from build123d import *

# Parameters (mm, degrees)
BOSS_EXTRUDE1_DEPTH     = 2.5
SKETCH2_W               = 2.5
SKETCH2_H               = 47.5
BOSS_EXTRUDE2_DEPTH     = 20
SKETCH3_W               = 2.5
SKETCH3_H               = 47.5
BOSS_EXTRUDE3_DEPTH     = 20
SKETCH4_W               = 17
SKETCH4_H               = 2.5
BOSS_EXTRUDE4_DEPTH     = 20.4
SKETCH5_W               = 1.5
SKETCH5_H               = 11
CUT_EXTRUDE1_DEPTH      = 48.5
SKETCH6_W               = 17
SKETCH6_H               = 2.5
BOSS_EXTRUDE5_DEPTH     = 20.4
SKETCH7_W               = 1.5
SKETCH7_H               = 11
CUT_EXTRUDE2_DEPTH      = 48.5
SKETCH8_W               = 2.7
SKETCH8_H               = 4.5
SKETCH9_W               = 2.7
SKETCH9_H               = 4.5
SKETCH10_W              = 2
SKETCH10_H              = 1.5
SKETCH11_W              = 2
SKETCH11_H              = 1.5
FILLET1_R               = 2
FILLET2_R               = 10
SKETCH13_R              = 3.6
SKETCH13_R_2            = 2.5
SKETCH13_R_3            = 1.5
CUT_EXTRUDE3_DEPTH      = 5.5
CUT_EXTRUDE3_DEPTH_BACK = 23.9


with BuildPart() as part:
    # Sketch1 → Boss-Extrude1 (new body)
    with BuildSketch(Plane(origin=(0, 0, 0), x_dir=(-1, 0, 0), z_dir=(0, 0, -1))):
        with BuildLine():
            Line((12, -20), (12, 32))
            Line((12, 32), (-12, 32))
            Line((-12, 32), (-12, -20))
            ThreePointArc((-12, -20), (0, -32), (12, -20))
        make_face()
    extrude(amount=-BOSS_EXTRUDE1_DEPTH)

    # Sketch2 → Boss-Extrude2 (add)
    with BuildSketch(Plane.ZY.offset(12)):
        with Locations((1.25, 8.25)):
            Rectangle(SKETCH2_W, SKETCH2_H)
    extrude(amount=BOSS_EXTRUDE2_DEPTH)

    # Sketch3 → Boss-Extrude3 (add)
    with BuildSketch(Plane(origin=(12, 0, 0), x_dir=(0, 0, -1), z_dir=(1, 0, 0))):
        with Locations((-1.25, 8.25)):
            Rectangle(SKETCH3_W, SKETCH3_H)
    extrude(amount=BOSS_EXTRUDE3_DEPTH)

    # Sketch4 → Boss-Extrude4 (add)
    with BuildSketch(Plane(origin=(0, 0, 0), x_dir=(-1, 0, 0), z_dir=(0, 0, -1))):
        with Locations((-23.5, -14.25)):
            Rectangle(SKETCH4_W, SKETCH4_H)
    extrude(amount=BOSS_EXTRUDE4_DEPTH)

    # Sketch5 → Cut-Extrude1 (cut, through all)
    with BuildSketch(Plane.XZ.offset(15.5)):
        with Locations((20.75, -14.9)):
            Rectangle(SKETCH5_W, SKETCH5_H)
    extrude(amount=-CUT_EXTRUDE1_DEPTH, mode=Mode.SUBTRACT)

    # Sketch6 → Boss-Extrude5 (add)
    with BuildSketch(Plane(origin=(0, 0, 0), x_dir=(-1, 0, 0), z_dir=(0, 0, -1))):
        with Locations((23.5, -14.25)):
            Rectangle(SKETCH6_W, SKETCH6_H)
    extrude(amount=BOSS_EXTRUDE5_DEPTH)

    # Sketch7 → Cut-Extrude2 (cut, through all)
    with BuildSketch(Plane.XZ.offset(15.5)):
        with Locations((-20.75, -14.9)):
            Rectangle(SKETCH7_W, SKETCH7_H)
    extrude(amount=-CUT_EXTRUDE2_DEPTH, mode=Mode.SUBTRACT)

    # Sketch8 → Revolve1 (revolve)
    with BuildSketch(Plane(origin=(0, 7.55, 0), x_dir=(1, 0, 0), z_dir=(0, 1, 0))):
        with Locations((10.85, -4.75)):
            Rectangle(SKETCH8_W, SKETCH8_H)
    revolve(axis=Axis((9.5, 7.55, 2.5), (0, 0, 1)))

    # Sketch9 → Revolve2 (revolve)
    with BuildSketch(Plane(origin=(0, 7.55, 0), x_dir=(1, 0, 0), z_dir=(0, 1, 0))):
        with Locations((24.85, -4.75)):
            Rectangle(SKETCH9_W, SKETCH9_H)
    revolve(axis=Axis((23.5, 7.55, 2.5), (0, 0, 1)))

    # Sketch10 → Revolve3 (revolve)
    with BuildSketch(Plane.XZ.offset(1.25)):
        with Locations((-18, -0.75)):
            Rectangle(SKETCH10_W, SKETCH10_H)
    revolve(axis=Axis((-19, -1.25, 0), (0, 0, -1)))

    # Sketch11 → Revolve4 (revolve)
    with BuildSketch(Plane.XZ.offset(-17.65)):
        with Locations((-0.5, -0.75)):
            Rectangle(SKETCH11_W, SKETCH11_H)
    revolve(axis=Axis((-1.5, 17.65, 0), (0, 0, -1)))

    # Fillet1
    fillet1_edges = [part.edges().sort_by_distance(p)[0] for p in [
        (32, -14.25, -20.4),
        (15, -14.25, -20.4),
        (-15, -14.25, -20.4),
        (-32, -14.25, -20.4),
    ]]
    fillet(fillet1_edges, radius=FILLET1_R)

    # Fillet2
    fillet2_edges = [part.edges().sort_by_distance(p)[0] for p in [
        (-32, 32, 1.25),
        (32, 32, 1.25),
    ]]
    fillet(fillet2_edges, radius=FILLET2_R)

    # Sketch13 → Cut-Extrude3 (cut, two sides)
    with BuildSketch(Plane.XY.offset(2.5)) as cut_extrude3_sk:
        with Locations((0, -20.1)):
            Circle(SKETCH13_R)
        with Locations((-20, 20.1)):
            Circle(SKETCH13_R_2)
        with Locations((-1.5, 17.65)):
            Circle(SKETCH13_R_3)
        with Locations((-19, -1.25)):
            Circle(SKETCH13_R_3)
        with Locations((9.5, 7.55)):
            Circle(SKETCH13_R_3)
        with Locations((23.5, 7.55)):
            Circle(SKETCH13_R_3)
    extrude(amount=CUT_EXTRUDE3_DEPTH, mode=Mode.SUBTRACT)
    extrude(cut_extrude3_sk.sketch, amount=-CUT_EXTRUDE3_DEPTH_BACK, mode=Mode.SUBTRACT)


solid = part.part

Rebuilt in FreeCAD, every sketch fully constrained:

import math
import FreeCAD as App
import Part
import Sketcher


def edges_at(feature, points):
    """Names of the edges that pass closest to the given points."""
    edges = feature.Shape.Edges
    near = lambda p: min(range(len(edges)), key=lambda i: edges[i].distToShape(Part.Vertex(*p))[0])
    return sorted({f"Edge{near(p) + 1}" for p in points})

doc = App.newDocument("Part")
body = doc.addObject("PartDesign::Body", "Body")

sketch1 = body.newObject("Sketcher::SketchObject", "Sketch")
sketch1.AttachmentSupport = (doc.getObject("XY_Plane"), [""])
sketch1.MapMode = "FlatFace"
sketch1.addGeometry([
    Part.LineSegment(App.Vector(-12, -20, 0), App.Vector(-12, 32, 0)),
    Part.LineSegment(App.Vector(-12, 32, 0), App.Vector(12, 32, 0)),
    Part.LineSegment(App.Vector(12, 32, 0), App.Vector(12, -20, 0)),
    Part.ArcOfCircle(Part.Circle(App.Vector(0, -20, 0), App.Vector(0, 0, 1), 12), math.radians(180), math.radians(360)),
], False)
sketch1.addConstraint([
    Sketcher.Constraint("Coincident", 0, 2, 1, 1),
    Sketcher.Constraint("Coincident", 1, 2, 2, 1),
    Sketcher.Constraint("Tangent", 2, 2, 3, 2),
    Sketcher.Constraint("Tangent", 3, 1, 0, 1),
    Sketcher.Constraint("Vertical", 0),
    Sketcher.Constraint("Horizontal", 1),
    Sketcher.Constraint("Vertical", 2),
    Sketcher.Constraint("PointOnObject", 3, 3, -2),
    Sketcher.Constraint("Radius", 3, 12.0),
    Sketcher.Constraint("DistanceY", 0, 1, 0, 2, 52.0),
    Sketcher.Constraint("DistanceY", 3, 3, -1, 1, 20.0),
])
pad1 = body.newObject("PartDesign::Pad", "Pad")
pad1.Profile = sketch1
pad1.Length = 2.5

sketch2 = body.newObject("Sketcher::SketchObject", "Sketch001")
sketch2.AttachmentSupport = (doc.getObject("YZ_Plane"), [""])
sketch2.MapMode = "FlatFace"
sketch2.AttachmentOffset = App.Placement(App.Vector(0, 0, -12), App.Rotation())
sketch2.addGeometry([
    Part.LineSegment(App.Vector(32, 0, 0), App.Vector(-15.5, 0, 0)),
    Part.LineSegment(App.Vector(-15.5, 0, 0), App.Vector(-15.5, 2.5, 0)),
    Part.LineSegment(App.Vector(-15.5, 2.5, 0), App.Vector(32, 2.5, 0)),
    Part.LineSegment(App.Vector(32, 2.5, 0), App.Vector(32, 0, 0)),
], False)
sketch2.addConstraint([
    Sketcher.Constraint("Coincident", 0, 2, 1, 1),
    Sketcher.Constraint("Coincident", 1, 2, 2, 1),
    Sketcher.Constraint("Coincident", 2, 2, 3, 1),
    Sketcher.Constraint("Coincident", 3, 2, 0, 1),
    Sketcher.Constraint("Horizontal", 0),
    Sketcher.Constraint("Vertical", 1),
    Sketcher.Constraint("Horizontal", 2),
    Sketcher.Constraint("Vertical", 3),
    Sketcher.Constraint("PointOnObject", 0, 2, -1),
    Sketcher.Constraint("DistanceX", 0, 2, 0, 1, 47.5),
    Sketcher.Constraint("DistanceY", 1, 1, 1, 2, 2.5),
    Sketcher.Constraint("DistanceX", -1, 1, 2, 2, 32.0),
])
pad2 = body.newObject("PartDesign::Pad", "Pad001")
pad2.Profile = sketch2
pad2.Length = 20
pad2.Reversed = True

sketch3 = body.newObject("Sketcher::SketchObject", "Sketch002")
sketch3.AttachmentSupport = (doc.getObject("YZ_Plane"), [""])
sketch3.MapMode = "FlatFace"
sketch3.AttachmentOffset = App.Placement(App.Vector(0, 0, 12), App.Rotation())
sketch3.addGeometry([
    Part.LineSegment(App.Vector(32, 2.5, 0), App.Vector(-15.5, 2.5, 0)),
    Part.LineSegment(App.Vector(-15.5, 2.5, 0), App.Vector(-15.5, 0, 0)),
    Part.LineSegment(App.Vector(-15.5, 0, 0), App.Vector(32, 0, 0)),
    Part.LineSegment(App.Vector(32, 0, 0), App.Vector(32, 2.5, 0)),
], False)
sketch3.addConstraint([
    Sketcher.Constraint("Coincident", 0, 2, 1, 1),
    Sketcher.Constraint("Coincident", 1, 2, 2, 1),
    Sketcher.Constraint("Coincident", 2, 2, 3, 1),
    Sketcher.Constraint("Coincident", 3, 2, 0, 1),
    Sketcher.Constraint("Horizontal", 0),
    Sketcher.Constraint("Vertical", 1),
    Sketcher.Constraint("Horizontal", 2),
    Sketcher.Constraint("Vertical", 3),
    Sketcher.Constraint("PointOnObject", 1, 2, -1),
    Sketcher.Constraint("DistanceX", 0, 2, 0, 1, 47.5),
    Sketcher.Constraint("DistanceY", 1, 2, 1, 1, 2.5),
    Sketcher.Constraint("DistanceX", -1, 1, 2, 2, 32.0),
])
pad3 = body.newObject("PartDesign::Pad", "Pad002")
pad3.Profile = sketch3
pad3.Length = 20

sketch4 = body.newObject("Sketcher::SketchObject", "Sketch003")
sketch4.AttachmentSupport = (doc.getObject("XY_Plane"), [""])
sketch4.MapMode = "FlatFace"
sketch4.addGeometry([
    Part.LineSegment(App.Vector(32, -13, 0), App.Vector(32, -15.5, 0)),
    Part.LineSegment(App.Vector(32, -15.5, 0), App.Vector(15, -15.5, 0)),
    Part.LineSegment(App.Vector(15, -15.5, 0), App.Vector(15, -13, 0)),
    Part.LineSegment(App.Vector(15, -13, 0), App.Vector(32, -13, 0)),
], False)
sketch4.addConstraint([
    Sketcher.Constraint("Coincident", 0, 2, 1, 1),
    Sketcher.Constraint("Coincident", 1, 2, 2, 1),
    Sketcher.Constraint("Coincident", 2, 2, 3, 1),
    Sketcher.Constraint("Coincident", 3, 2, 0, 1),
    Sketcher.Constraint("Vertical", 0),
    Sketcher.Constraint("Horizontal", 1),
    Sketcher.Constraint("Vertical", 2),
    Sketcher.Constraint("Horizontal", 3),
    Sketcher.Constraint("DistanceX", 1, 2, 1, 1, 17.0),
    Sketcher.Constraint("DistanceY", 0, 2, 0, 1, 2.5),
    Sketcher.Constraint("DistanceX", -1, 1, 0, 2, 32.0),
    Sketcher.Constraint("DistanceY", 2, 2, -1, 1, 13.0),
])
pad4 = body.newObject("PartDesign::Pad", "Pad003")
pad4.Profile = sketch4
pad4.Length = 20.4
pad4.Reversed = True

sketch5 = body.newObject("Sketcher::SketchObject", "Sketch004")
sketch5.AttachmentSupport = (doc.getObject("XZ_Plane"), [""])
sketch5.MapMode = "FlatFace"
sketch5.AttachmentOffset = App.Placement(App.Vector(0, 0, 15.5), App.Rotation())
sketch5.addGeometry([
    Part.LineSegment(App.Vector(20, -9.4, 0), App.Vector(20, -20.4, 0)),
    Part.LineSegment(App.Vector(20, -20.4, 0), App.Vector(21.5, -20.4, 0)),
    Part.LineSegment(App.Vector(21.5, -20.4, 0), App.Vector(21.5, -9.4, 0)),
    Part.LineSegment(App.Vector(21.5, -9.4, 0), App.Vector(20, -9.4, 0)),
], False)
sketch5.addConstraint([
    Sketcher.Constraint("Coincident", 0, 2, 1, 1),
    Sketcher.Constraint("Coincident", 1, 2, 2, 1),
    Sketcher.Constraint("Coincident", 2, 2, 3, 1),
    Sketcher.Constraint("Coincident", 3, 2, 0, 1),
    Sketcher.Constraint("Vertical", 0),
    Sketcher.Constraint("Horizontal", 1),
    Sketcher.Constraint("Vertical", 2),
    Sketcher.Constraint("Horizontal", 3),
    Sketcher.Constraint("DistanceY", 0, 2, 0, 1, 11.0),
    Sketcher.Constraint("DistanceX", 1, 1, 1, 2, 1.5),
    Sketcher.Constraint("DistanceX", -1, 1, 0, 2, 20.0),
    Sketcher.Constraint("DistanceY", 0, 2, -1, 1, 20.4),
])
pocket1 = body.newObject("PartDesign::Pocket", "Pocket")
pocket1.Profile = sketch5
pocket1.Type = "ThroughAll"

sketch6 = body.newObject("Sketcher::SketchObject", "Sketch005")
sketch6.AttachmentSupport = (doc.getObject("XY_Plane"), [""])
sketch6.MapMode = "FlatFace"
sketch6.addGeometry([
    Part.LineSegment(App.Vector(-15, -13, 0), App.Vector(-15, -15.5, 0)),
    Part.LineSegment(App.Vector(-15, -15.5, 0), App.Vector(-32, -15.5, 0)),
    Part.LineSegment(App.Vector(-32, -15.5, 0), App.Vector(-32, -13, 0)),
    Part.LineSegment(App.Vector(-32, -13, 0), App.Vector(-15, -13, 0)),
], False)
sketch6.addConstraint([
    Sketcher.Constraint("Coincident", 0, 2, 1, 1),
    Sketcher.Constraint("Coincident", 1, 2, 2, 1),
    Sketcher.Constraint("Coincident", 2, 2, 3, 1),
    Sketcher.Constraint("Coincident", 3, 2, 0, 1),
    Sketcher.Constraint("Vertical", 0),
    Sketcher.Constraint("Horizontal", 1),
    Sketcher.Constraint("Vertical", 2),
    Sketcher.Constraint("Horizontal", 3),
    Sketcher.Constraint("DistanceX", 1, 2, 1, 1, 17.0),
    Sketcher.Constraint("DistanceY", 0, 2, 0, 1, 2.5),
    Sketcher.Constraint("DistanceX", 0, 2, -1, 1, 15.0),
    Sketcher.Constraint("DistanceY", 2, 2, -1, 1, 13.0),
])
pad5 = body.newObject("PartDesign::Pad", "Pad004")
pad5.Profile = sketch6
pad5.Length = 20.4
pad5.Reversed = True

sketch7 = body.newObject("Sketcher::SketchObject", "Sketch006")
sketch7.AttachmentSupport = (doc.getObject("XZ_Plane"), [""])
sketch7.MapMode = "FlatFace"
sketch7.AttachmentOffset = App.Placement(App.Vector(0, 0, 15.5), App.Rotation())
sketch7.addGeometry([
    Part.LineSegment(App.Vector(-21.5, -9.4, 0), App.Vector(-21.5, -20.4, 0)),
    Part.LineSegment(App.Vector(-21.5, -20.4, 0), App.Vector(-20, -20.4, 0)),
    Part.LineSegment(App.Vector(-20, -20.4, 0), App.Vector(-20, -9.4, 0)),
    Part.LineSegment(App.Vector(-20, -9.4, 0), App.Vector(-21.5, -9.4, 0)),
], False)
sketch7.addConstraint([
    Sketcher.Constraint("Coincident", 0, 2, 1, 1),
    Sketcher.Constraint("Coincident", 1, 2, 2, 1),
    Sketcher.Constraint("Coincident", 2, 2, 3, 1),
    Sketcher.Constraint("Coincident", 3, 2, 0, 1),
    Sketcher.Constraint("Vertical", 0),
    Sketcher.Constraint("Horizontal", 1),
    Sketcher.Constraint("Vertical", 2),
    Sketcher.Constraint("Horizontal", 3),
    Sketcher.Constraint("DistanceY", 0, 2, 0, 1, 11.0),
    Sketcher.Constraint("DistanceX", 1, 1, 1, 2, 1.5),
    Sketcher.Constraint("DistanceX", 1, 2, -1, 1, 20.0),
    Sketcher.Constraint("DistanceY", 0, 2, -1, 1, 20.4),
])
pocket2 = body.newObject("PartDesign::Pocket", "Pocket001")
pocket2.Profile = sketch7
pocket2.Type = "ThroughAll"

sketch8 = body.newObject("Sketcher::SketchObject", "Sketch007")
sketch8.AttachmentSupport = (doc.getObject("XZ_Plane"), [""])
sketch8.MapMode = "FlatFace"
sketch8.AttachmentOffset = App.Placement(App.Vector(0, 0, -7.55), App.Rotation())
sketch8.addGeometry([
    Part.LineSegment(App.Vector(9.5, 2.5, 0), App.Vector(9.5, 7, 0)),
    Part.LineSegment(App.Vector(9.5, 7, 0), App.Vector(12.2, 7, 0)),
    Part.LineSegment(App.Vector(12.2, 7, 0), App.Vector(12.2, 2.5, 0)),
    Part.LineSegment(App.Vector(12.2, 2.5, 0), App.Vector(9.5, 2.5, 0)),
], False)
sketch8.addGeometry(Part.LineSegment(App.Vector(9.5, 2.5, 0), App.Vector(9.5, 7, 0)), True)
sketch8.addConstraint([
    Sketcher.Constraint("Coincident", 0, 2, 1, 1),
    Sketcher.Constraint("Coincident", 1, 2, 2, 1),
    Sketcher.Constraint("Coincident", 2, 2, 3, 1),
    Sketcher.Constraint("Coincident", 3, 2, 0, 1),
    Sketcher.Constraint("Vertical", 0),
    Sketcher.Constraint("Horizontal", 1),
    Sketcher.Constraint("Vertical", 2),
    Sketcher.Constraint("Horizontal", 3),
    Sketcher.Constraint("Vertical", 4),
    Sketcher.Constraint("Coincident", 4, 1, 3, 2),
    Sketcher.Constraint("Horizontal", 1, 2, 4, 2),
    Sketcher.Constraint("DistanceX", 1, 1, 1, 2, 2.7),
    Sketcher.Constraint("DistanceY", 0, 1, 0, 2, 4.5),
    Sketcher.Constraint("DistanceY", -1, 1, 0, 2, 7.0),
    Sketcher.Constraint("DistanceX", -1, 1, 0, 2, 9.5),
])
revolution = body.newObject("PartDesign::Revolution", "Revolution")
revolution.Profile = sketch8
revolution.ReferenceAxis = (sketch8, ["Axis0"])
revolution.Angle = 360

sketch9 = body.newObject("Sketcher::SketchObject", "Sketch008")
sketch9.AttachmentSupport = (doc.getObject("XZ_Plane"), [""])
sketch9.MapMode = "FlatFace"
sketch9.AttachmentOffset = App.Placement(App.Vector(0, 0, -7.55), App.Rotation())
sketch9.addGeometry([
    Part.LineSegment(App.Vector(23.5, 2.5, 0), App.Vector(23.5, 7, 0)),
    Part.LineSegment(App.Vector(23.5, 7, 0), App.Vector(26.2, 7, 0)),
    Part.LineSegment(App.Vector(26.2, 7, 0), App.Vector(26.2, 2.5, 0)),
    Part.LineSegment(App.Vector(26.2, 2.5, 0), App.Vector(23.5, 2.5, 0)),
], False)
sketch9.addGeometry(Part.LineSegment(App.Vector(23.5, 2.5, 0), App.Vector(23.5, 7, 0)), True)
sketch9.addConstraint([
    Sketcher.Constraint("Coincident", 0, 2, 1, 1),
    Sketcher.Constraint("Coincident", 1, 2, 2, 1),
    Sketcher.Constraint("Coincident", 2, 2, 3, 1),
    Sketcher.Constraint("Coincident", 3, 2, 0, 1),
    Sketcher.Constraint("Vertical", 0),
    Sketcher.Constraint("Horizontal", 1),
    Sketcher.Constraint("Vertical", 2),
    Sketcher.Constraint("Horizontal", 3),
    Sketcher.Constraint("Vertical", 4),
    Sketcher.Constraint("Coincident", 4, 1, 3, 2),
    Sketcher.Constraint("Horizontal", 1, 2, 4, 2),
    Sketcher.Constraint("DistanceX", 1, 1, 1, 2, 2.7),
    Sketcher.Constraint("DistanceY", 0, 1, 0, 2, 4.5),
    Sketcher.Constraint("DistanceY", -1, 1, 0, 2, 7.0),
    Sketcher.Constraint("DistanceX", -1, 1, 0, 2, 23.5),
])
revolution2 = body.newObject("PartDesign::Revolution", "Revolution001")
revolution2.Profile = sketch9
revolution2.ReferenceAxis = (sketch9, ["Axis0"])
revolution2.Angle = 360

sketch10 = body.newObject("Sketcher::SketchObject", "Sketch009")
sketch10.AttachmentSupport = (doc.getObject("XZ_Plane"), [""])
sketch10.MapMode = "FlatFace"
sketch10.AttachmentOffset = App.Placement(App.Vector(0, 0, 1.25), App.Rotation())
sketch10.addGeometry([
    Part.LineSegment(App.Vector(-19, 0, 0), App.Vector(-19, -1.5, 0)),
    Part.LineSegment(App.Vector(-19, -1.5, 0), App.Vector(-17, -1.5, 0)),
    Part.LineSegment(App.Vector(-17, -1.5, 0), App.Vector(-17, 0, 0)),
    Part.LineSegment(App.Vector(-17, 0, 0), App.Vector(-19, 0, 0)),
], False)
sketch10.addGeometry(Part.LineSegment(App.Vector(-19, 0, 0), App.Vector(-19, -1.5, 0)), True)
sketch10.addConstraint([
    Sketcher.Constraint("Coincident", 0, 2, 1, 1),
    Sketcher.Constraint("Coincident", 1, 2, 2, 1),
    Sketcher.Constraint("Coincident", 2, 2, 3, 1),
    Sketcher.Constraint("Coincident", 3, 2, 0, 1),
    Sketcher.Constraint("Vertical", 0),
    Sketcher.Constraint("Horizontal", 1),
    Sketcher.Constraint("Vertical", 2),
    Sketcher.Constraint("Horizontal", 3),
    Sketcher.Constraint("Vertical", 4),
    Sketcher.Constraint("Coincident", 4, 1, 3, 2),
    Sketcher.Constraint("PointOnObject", 2, 2, -1),
    Sketcher.Constraint("Horizontal", 1, 2, 4, 2),
    Sketcher.Constraint("DistanceX", 1, 1, 1, 2, 2.0),
    Sketcher.Constraint("DistanceY", 0, 2, 0, 1, 1.5),
    Sketcher.Constraint("DistanceX", 0, 2, -1, 1, 19.0),
])
revolution3 = body.newObject("PartDesign::Revolution", "Revolution002")
revolution3.Profile = sketch10
revolution3.ReferenceAxis = (sketch10, ["Axis0"])
revolution3.Angle = 360

sketch11 = body.newObject("Sketcher::SketchObject", "Sketch010")
sketch11.AttachmentSupport = (doc.getObject("XZ_Plane"), [""])
sketch11.MapMode = "FlatFace"
sketch11.AttachmentOffset = App.Placement(App.Vector(0, 0, -17.65), App.Rotation())
sketch11.addGeometry([
    Part.LineSegment(App.Vector(-1.5, 0, 0), App.Vector(-1.5, -1.5, 0)),
    Part.LineSegment(App.Vector(-1.5, -1.5, 0), App.Vector(0.5, -1.5, 0)),
    Part.LineSegment(App.Vector(0.5, -1.5, 0), App.Vector(0.5, 0, 0)),
    Part.LineSegment(App.Vector(0.5, 0, 0), App.Vector(-1.5, 0, 0)),
], False)
sketch11.addGeometry(Part.LineSegment(App.Vector(-1.5, 0, 0), App.Vector(-1.5, -1.5, 0)), True)
sketch11.addConstraint([
    Sketcher.Constraint("Coincident", 0, 2, 1, 1),
    Sketcher.Constraint("Coincident", 1, 2, 2, 1),
    Sketcher.Constraint("Coincident", 2, 2, 3, 1),
    Sketcher.Constraint("Coincident", 3, 2, 0, 1),
    Sketcher.Constraint("Vertical", 0),
    Sketcher.Constraint("Horizontal", 1),
    Sketcher.Constraint("Vertical", 2),
    Sketcher.Constraint("Horizontal", 3),
    Sketcher.Constraint("Vertical", 4),
    Sketcher.Constraint("Coincident", 4, 1, 3, 2),
    Sketcher.Constraint("PointOnObject", 2, 2, -1),
    Sketcher.Constraint("Horizontal", 1, 2, 4, 2),
    Sketcher.Constraint("DistanceX", 1, 1, 1, 2, 2.0),
    Sketcher.Constraint("DistanceY", 0, 2, 0, 1, 1.5),
    Sketcher.Constraint("DistanceX", 0, 2, -1, 1, 1.5),
])
revolution4 = body.newObject("PartDesign::Revolution", "Revolution003")
revolution4.Profile = sketch11
revolution4.ReferenceAxis = (sketch11, ["Axis0"])
revolution4.Angle = 360
doc.recompute()

fillet = body.newObject("PartDesign::Fillet", "Fillet")
fillet.Base = (revolution4, edges_at(revolution4, [
    (32, -14.25, -20.4),
    (15, -14.25, -20.4),
    (-15, -14.25, -20.4),
    (-32, -14.25, -20.4),
]))
fillet.Radius = 2
doc.recompute()

fillet2 = body.newObject("PartDesign::Fillet", "Fillet001")
fillet2.Base = (fillet, edges_at(fillet, [(-32, 32, 1.25), (32, 32, 1.25)]))
fillet2.Radius = 10

sketch12 = body.newObject("Sketcher::SketchObject", "Sketch011")
sketch12.AttachmentSupport = (doc.getObject("XY_Plane"), [""])
sketch12.MapMode = "FlatFace"
sketch12.AttachmentOffset = App.Placement(App.Vector(0, 0, 2.5), App.Rotation())
sketch12.addGeometry([
    Part.Circle(App.Vector(0, -20.1, 0), App.Vector(0, 0, 1), 3.6),
    Part.Circle(App.Vector(-20, 20.1, 0), App.Vector(0, 0, 1), 2.5),
    Part.Circle(App.Vector(-1.5, 17.6, 0), App.Vector(0, 0, 1), 1.5),
    Part.Circle(App.Vector(-19, -1.2, 0), App.Vector(0, 0, 1), 1.5),
    Part.Circle(App.Vector(9.5, 7.5, 0), App.Vector(0, 0, 1), 1.5),
    Part.Circle(App.Vector(23.5, 7.5, 0), App.Vector(0, 0, 1), 1.5),
], False)
sketch12.addConstraint([
    Sketcher.Constraint("Equal", 2, 3),
    Sketcher.Constraint("Equal", 3, 4),
    Sketcher.Constraint("Equal", 4, 5),
    Sketcher.Constraint("PointOnObject", 0, 3, -2),
    Sketcher.Constraint("Horizontal", 4, 3, 5, 3),
    Sketcher.Constraint("Diameter", 1, 5.0),
    Sketcher.Constraint("Diameter", 2, 3.0),
    Sketcher.Constraint("Diameter", 0, 7.2),
    Sketcher.Constraint("DistanceX", 1, 3, -1, 1, 20.0),
    Sketcher.Constraint("DistanceX", 3, 3, -1, 1, 19.0),
    Sketcher.Constraint("DistanceX", 2, 3, 4, 3, 11.0),
    Sketcher.Constraint("DistanceX", 4, 3, 5, 3, 14.0),
    Sketcher.Constraint("DistanceY", 0, 3, -1, 1, 20.1),
    Sketcher.Constraint("DistanceY", -1, 1, 1, 3, 20.1),
    Sketcher.Constraint("DistanceX", 2, 3, -1, 1, 1.5),
    Sketcher.Constraint("DistanceY", 3, 3, 2, 3, 18.9),
    Sketcher.Constraint("DistanceY", 4, 3, 2, 3, 10.1),
    Sketcher.Constraint("DistanceY", -1, 1, 2, 3, 17.65),
])
pocket3 = body.newObject("PartDesign::Pocket", "Pocket002")
pocket3.Profile = sketch12
pocket3.Type = "ThroughAll"
pocket3.Midplane = True

doc.recompute()
